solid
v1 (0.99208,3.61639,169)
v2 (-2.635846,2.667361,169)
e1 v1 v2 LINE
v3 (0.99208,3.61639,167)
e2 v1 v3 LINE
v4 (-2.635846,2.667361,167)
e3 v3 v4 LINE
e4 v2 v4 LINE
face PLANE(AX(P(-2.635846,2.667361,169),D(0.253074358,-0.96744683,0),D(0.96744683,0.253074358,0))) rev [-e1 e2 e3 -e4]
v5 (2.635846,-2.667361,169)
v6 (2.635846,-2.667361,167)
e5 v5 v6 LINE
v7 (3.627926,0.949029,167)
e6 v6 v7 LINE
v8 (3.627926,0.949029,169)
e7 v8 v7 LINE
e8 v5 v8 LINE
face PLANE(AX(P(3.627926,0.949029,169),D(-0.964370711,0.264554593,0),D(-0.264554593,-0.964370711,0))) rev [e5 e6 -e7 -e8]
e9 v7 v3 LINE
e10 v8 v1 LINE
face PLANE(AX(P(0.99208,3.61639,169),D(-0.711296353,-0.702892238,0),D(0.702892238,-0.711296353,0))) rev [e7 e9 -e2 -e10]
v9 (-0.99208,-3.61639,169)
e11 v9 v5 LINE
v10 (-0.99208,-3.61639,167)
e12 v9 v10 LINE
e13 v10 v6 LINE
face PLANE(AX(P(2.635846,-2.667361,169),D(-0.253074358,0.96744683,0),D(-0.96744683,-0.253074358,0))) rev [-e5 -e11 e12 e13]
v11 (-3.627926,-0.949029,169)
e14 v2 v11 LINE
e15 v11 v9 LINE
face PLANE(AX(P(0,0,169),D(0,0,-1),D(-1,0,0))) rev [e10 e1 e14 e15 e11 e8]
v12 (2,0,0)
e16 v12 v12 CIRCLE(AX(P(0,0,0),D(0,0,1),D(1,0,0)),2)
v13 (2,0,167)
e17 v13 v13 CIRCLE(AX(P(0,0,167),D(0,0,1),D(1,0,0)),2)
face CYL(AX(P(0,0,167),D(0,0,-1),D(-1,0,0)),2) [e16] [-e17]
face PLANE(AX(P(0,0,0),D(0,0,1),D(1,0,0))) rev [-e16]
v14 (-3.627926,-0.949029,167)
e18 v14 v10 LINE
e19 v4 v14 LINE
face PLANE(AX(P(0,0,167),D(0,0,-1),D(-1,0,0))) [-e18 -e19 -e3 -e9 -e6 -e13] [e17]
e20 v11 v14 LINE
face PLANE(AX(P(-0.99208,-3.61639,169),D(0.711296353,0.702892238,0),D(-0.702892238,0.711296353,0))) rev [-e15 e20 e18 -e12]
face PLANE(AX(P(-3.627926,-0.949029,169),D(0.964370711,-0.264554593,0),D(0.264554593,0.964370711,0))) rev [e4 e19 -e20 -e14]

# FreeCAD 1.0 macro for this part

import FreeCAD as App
import Part
import Sketcher

V = App.Vector

doc = App.newDocument("Part")
params = doc.addObject("Spreadsheet::Sheet", "Params")
for row, (alias, value) in enumerate([
    ("sketch1_diameter", "4 mm"),
    ("pad1_length", "167 mm"),
    ("sketch2_length", "3.75 mm"),
    ("pad2_length", "2 mm"),
], start=1):
    params.set(f"A{row}", alias)
    params.set(f"B{row}", "=" + value)
    params.setAlias(f"B{row}", alias)

body = doc.addObject("PartDesign::Body", "Body")

# Sketch on XY plane
sketch1 = doc.addObject("Sketcher::SketchObject", "Sketch")
body.addObject(sketch1)
sketch1.AttachmentSupport = (doc.XY_Plane, [""])
sketch1.MapMode = "FlatFace"
sketch1.addGeometry(Part.Circle(V(0, 0, 0), V(0, 0, 1), 2), False)
sketch1.addConstraint([
    Sketcher.Constraint("Coincident", 0, 3, -1, 1),
    Sketcher.Constraint("Diameter", 0, 4.0),
])
sketch1.setExpression("Constraints[1]", "Params.sketch1_diameter")
pad1 = doc.addObject("PartDesign::Pad", "Pad")
body.addObject(pad1)
pad1.Profile = sketch1
pad1.setExpression("Length", "Params.pad1_length")

# Sketch on XY plane
sketch2 = doc.addObject("Sketcher::SketchObject", "Sketch001")
body.addObject(sketch2)
sketch2.AttachmentSupport = (doc.XY_Plane, [""])
sketch2.MapMode = "FlatFace"
sketch2.AttachmentOffset = App.Placement(V(0, 0, 167), App.Rotation())
sketch2.addGeometry([
    Part.LineSegment(V(1, 3.6, 0), V(-2.6, 2.7, 0)),  # 0
    Part.LineSegment(V(-2.6, 2.7, 0), V(-3.6, -0.9, 0)),  # 1
    Part.LineSegment(V(-3.6, -0.9, 0), V(-1, -3.6, 0)),  # 2
    Part.LineSegment(V(-1, -3.6, 0), V(2.6, -2.7, 0)),  # 3
    Part.LineSegment(V(2.6, -2.7, 0), V(3.6, 0.9, 0)),  # 4
    Part.LineSegment(V(3.6, 0.9, 0), V(1, 3.6, 0)),  # 5
], False)
sketch2.addConstraint([
    Sketcher.Constraint("Coincident", 0, 2, 1, 1),
    Sketcher.Constraint("Coincident", 1, 2, 2, 1),
    Sketcher.Constraint("Coincident", 2, 2, 3, 1),
    Sketcher.Constraint("Coincident", 3, 2, 4, 1),
    Sketcher.Constraint("Coincident", 4, 2, 5, 1),
    Sketcher.Constraint("Coincident", 5, 2, 0, 1),
    Sketcher.Constraint("Symmetric", 0, 2, 3, 2, -1, 1),
    Sketcher.Constraint("Symmetric", 1, 2, 4, 2, -1, 1),
    Sketcher.Constraint("Symmetric", 2, 2, 5, 2, -1, 1),
    Sketcher.Constraint("Equal", 0, 1),
    Sketcher.Constraint("Equal", 1, 2),
    Sketcher.Constraint("Distance", 0, 3.75),
    Sketcher.Constraint("DistanceY", -1, 1, 0, 2, 2.667361),
    Sketcher.Constraint("DistanceY", 1, 2, -1, 1, 0.949029),
    Sketcher.Constraint("DistanceX", 2, 2, -1, 1, 0.99208),
])
sketch2.setExpression("Constraints[11]", "Params.sketch2_length")
pad2 = doc.addObject("PartDesign::Pad", "Pad001")
body.addObject(pad2)
pad2.Profile = sketch2
pad2.setExpression("Length", "Params.pad2_length")

doc.recompute()
